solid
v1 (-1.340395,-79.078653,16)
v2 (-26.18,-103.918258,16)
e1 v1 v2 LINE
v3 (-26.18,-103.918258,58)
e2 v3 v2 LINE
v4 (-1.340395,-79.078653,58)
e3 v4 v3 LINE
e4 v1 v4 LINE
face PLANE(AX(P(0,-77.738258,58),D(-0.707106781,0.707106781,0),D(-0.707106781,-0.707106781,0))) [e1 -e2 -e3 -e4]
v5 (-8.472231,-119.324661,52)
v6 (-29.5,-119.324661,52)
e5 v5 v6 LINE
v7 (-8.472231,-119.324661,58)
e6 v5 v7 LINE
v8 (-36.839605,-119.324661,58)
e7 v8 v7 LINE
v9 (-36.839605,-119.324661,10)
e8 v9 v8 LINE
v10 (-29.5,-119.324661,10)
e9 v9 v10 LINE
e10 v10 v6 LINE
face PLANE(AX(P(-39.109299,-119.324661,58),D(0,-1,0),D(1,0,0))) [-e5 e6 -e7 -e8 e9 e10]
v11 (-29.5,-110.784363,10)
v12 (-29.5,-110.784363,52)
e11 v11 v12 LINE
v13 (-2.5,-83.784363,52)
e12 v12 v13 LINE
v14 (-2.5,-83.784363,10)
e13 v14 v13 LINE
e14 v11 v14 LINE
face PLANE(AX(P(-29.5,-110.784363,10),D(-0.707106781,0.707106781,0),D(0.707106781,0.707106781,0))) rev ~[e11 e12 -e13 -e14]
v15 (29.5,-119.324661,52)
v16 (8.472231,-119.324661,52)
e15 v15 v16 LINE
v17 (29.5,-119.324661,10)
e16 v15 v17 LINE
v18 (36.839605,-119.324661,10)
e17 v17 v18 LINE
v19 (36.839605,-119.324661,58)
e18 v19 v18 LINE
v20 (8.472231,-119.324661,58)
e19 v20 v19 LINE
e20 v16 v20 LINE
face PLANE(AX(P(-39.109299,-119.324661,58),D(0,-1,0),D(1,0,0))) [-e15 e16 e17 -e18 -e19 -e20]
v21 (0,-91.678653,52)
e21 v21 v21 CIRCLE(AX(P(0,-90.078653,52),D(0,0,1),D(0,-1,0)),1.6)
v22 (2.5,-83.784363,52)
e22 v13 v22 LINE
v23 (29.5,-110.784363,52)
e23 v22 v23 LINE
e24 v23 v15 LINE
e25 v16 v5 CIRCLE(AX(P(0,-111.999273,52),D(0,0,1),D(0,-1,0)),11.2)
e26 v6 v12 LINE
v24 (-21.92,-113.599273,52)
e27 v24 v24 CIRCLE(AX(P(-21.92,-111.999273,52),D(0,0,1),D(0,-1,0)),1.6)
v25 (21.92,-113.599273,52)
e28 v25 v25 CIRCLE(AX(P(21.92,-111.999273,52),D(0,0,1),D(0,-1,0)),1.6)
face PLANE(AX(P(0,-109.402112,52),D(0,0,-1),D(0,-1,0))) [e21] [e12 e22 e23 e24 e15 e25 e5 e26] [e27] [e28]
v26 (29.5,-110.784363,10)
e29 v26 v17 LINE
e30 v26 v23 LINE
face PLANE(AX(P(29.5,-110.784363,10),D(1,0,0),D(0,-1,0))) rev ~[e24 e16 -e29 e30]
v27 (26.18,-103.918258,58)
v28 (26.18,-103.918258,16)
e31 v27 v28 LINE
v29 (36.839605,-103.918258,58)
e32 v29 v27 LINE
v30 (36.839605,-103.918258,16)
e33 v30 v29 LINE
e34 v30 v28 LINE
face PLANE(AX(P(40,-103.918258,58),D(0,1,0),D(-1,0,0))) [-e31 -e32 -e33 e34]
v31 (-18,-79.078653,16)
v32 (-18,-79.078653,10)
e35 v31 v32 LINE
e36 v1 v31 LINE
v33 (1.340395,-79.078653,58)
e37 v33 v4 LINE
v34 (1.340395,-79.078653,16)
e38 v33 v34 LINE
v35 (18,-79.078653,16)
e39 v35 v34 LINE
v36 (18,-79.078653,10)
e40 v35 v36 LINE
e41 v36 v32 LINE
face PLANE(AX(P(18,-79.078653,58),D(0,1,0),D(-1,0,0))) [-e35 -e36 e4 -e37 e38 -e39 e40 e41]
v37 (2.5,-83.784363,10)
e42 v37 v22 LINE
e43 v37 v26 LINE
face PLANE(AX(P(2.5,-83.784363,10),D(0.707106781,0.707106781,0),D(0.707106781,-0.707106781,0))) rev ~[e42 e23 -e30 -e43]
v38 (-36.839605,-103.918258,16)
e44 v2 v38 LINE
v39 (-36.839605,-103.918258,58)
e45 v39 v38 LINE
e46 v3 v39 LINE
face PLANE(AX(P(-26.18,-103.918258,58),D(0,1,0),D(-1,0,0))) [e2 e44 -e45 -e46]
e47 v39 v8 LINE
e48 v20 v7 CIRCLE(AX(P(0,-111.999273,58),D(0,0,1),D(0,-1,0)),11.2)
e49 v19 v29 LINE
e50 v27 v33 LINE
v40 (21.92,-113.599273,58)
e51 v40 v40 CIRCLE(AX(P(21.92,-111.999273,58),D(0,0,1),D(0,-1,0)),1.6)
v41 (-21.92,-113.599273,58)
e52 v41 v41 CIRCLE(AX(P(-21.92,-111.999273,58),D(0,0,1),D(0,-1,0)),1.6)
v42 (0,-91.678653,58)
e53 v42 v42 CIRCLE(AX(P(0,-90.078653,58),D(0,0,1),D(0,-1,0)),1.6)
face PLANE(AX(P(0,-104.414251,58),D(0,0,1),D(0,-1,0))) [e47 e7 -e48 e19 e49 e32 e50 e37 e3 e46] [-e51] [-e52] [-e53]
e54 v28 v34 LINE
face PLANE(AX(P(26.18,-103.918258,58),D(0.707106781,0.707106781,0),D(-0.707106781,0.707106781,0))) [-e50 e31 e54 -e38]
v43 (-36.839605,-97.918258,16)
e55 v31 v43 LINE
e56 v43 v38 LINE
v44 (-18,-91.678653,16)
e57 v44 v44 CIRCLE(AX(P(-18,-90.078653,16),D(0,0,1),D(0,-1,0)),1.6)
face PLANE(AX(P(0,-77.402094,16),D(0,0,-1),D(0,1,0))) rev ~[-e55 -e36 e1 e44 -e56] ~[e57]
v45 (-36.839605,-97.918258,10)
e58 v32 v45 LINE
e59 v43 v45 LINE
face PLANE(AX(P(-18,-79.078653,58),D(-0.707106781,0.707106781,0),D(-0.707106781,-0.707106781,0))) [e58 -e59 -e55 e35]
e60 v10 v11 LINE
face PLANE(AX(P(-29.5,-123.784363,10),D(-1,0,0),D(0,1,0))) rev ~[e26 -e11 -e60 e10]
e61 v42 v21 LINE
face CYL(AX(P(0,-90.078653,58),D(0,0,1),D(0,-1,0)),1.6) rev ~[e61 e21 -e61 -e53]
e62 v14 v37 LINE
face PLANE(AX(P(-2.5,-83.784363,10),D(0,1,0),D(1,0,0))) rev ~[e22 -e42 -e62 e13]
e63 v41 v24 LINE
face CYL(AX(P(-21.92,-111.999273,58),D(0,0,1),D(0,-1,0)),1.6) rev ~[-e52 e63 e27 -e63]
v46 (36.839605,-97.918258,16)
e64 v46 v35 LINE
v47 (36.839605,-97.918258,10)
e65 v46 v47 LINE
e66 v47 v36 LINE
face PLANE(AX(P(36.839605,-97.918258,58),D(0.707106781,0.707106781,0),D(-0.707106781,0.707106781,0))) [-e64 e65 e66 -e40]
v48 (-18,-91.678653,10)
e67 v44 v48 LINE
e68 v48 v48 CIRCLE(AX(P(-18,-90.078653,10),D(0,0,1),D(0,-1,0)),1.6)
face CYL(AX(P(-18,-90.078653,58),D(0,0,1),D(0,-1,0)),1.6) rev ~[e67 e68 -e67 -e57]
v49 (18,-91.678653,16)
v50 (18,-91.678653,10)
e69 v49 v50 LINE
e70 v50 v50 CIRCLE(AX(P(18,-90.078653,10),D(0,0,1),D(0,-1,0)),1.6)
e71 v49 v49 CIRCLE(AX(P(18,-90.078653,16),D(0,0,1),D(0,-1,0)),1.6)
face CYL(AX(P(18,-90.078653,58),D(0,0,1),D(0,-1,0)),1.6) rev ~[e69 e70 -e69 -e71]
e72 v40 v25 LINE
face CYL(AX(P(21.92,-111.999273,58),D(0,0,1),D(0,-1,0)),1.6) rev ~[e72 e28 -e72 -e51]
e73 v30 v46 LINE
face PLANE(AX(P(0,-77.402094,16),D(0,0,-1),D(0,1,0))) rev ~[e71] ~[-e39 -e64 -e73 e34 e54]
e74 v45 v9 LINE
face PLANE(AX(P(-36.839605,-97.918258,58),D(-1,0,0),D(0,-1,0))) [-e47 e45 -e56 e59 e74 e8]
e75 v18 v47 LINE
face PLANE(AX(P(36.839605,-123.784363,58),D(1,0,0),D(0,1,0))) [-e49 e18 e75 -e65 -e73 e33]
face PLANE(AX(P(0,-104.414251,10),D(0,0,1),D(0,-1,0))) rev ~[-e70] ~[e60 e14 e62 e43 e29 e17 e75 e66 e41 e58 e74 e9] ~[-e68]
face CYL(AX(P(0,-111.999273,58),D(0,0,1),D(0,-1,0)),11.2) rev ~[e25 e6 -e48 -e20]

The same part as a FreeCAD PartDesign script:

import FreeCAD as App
import Part
import Sketcher
from FreeCAD import Vector


def add_polygon(sketch, points):
    """Adds a closed chain of lines whose ends are joined by coincident constraints."""
    first, n = sketch.GeometryCount, len(points)
    for a, b in zip(points, points[1:] + points[:1]):
        sketch.addGeometry(Part.LineSegment(App.Vector(*a, 0), App.Vector(*b, 0)), False)
    for i in range(n):
        sketch.addConstraint(Sketcher.Constraint("Coincident", first + i, 2, first + (i + 1) % n, 1))

doc = App.newDocument("Part")
body = doc.addObject("PartDesign::Body", "Body")

# Sketch on XY plane
sketch1 = doc.addObject("Sketcher::SketchObject", "Sketch")
body.addObject(sketch1)
sketch1.AttachmentSupport = (doc.XY_Plane, [""])
sketch1.MapMode = "FlatFace"
add_polygon(sketch1, [(133.1, 18), (133.1, -18), (151.9, -36.8), (177.8, -36.8), (177.8, 36.8), (151.9, 36.8)])  # lines 0-5
sketch1.addGeometry(Part.Circle(Vector(144.1, -18, 0), Vector(0, 0, 1), 1.6), False)  # 6
sketch1.addGeometry(Part.Circle(Vector(166, -21.9, 0), Vector(0, 0, 1), 1.6), False)  # 7
sketch1.addGeometry(Part.Circle(Vector(144.1, 0, 0), Vector(0, 0, 1), 1.6), False)  # 8
sketch1.addGeometry(Part.Circle(Vector(144.1, 18, 0), Vector(0, 0, 1), 1.6), False)  # 9
sketch1.addGeometry(Part.Circle(Vector(166, 0, 0), Vector(0, 0, 1), 11.2), False)  # 10
sketch1.addGeometry(Part.Circle(Vector(166, 21.9, 0), Vector(0, 0, 1), 1.6), False)  # 11
sketch1.addConstraint(Sketcher.Constraint("Vertical", 0))
sketch1.addConstraint(Sketcher.Constraint("Horizontal", 2))
sketch1.addConstraint(Sketcher.Constraint("Vertical", 3))
sketch1.addConstraint(Sketcher.Constraint("Horizontal", 4))
sketch1.addConstraint(Sketcher.Constraint("Equal", 6, 7))
sketch1.addConstraint(Sketcher.Constraint("Equal", 7, 8))
sketch1.addConstraint(Sketcher.Constraint("Equal", 8, 9))
sketch1.addConstraint(Sketcher.Constraint("Equal", 9, 11))
sketch1.addConstraint(Sketcher.Constraint("Symmetric", 6, 3, 9, 3, -1))
sketch1.addConstraint(Sketcher.Constraint("Symmetric", 7, 3, 11, 3, -1))
sketch1.addConstraint(Sketcher.Constraint("Symmetric", 1, 2, 4, 2, -1))
sketch1.addConstraint(Sketcher.Constraint("PointOnObject", 8, 3, -1))
sketch1.addConstraint(Sketcher.Constraint("PointOnObject", 10, 3, -1))
sketch1.addConstraint(Sketcher.Constraint("Perpendicular", 1, 5))
sketch1.addConstraint(Sketcher.Constraint("Horizontal", 6, 3, 0, 2))
sketch1.addConstraint(Sketcher.Constraint("Horizontal", 9, 3, 5, 2))
sketch1.addConstraint(Sketcher.Constraint("Vertical", 6, 3, 8, 3))
sketch1.addConstraint(Sketcher.Constraint("Vertical", 7, 3, 10, 3))
sketch1.addConstraint(Sketcher.Constraint("Diameter", 6, 3.2))
sketch1.addConstraint(Sketcher.Constraint("Diameter", 10, 22.4))
sketch1.addConstraint(Sketcher.Constraint("DistanceY", 0, 2, 0, 1, 36.0))
sketch1.addConstraint(Sketcher.Constraint("DistanceX", 0, 2, 6, 3, 11.0))
sketch1.addConstraint(Sketcher.Constraint("DistanceY", 7, 3, -1, 1, 21.92))
sketch1.addConstraint(Sketcher.Constraint("DistanceY", 3, 1, 3, 2, 73.67921))
sketch1.addConstraint(Sketcher.Constraint("DistanceX", 2, 1, 2, 2, 25.866105))
sketch1.addConstraint(Sketcher.Constraint("DistanceX", -1, 1, 1, 2, 151.918258))
sketch1.addConstraint(Sketcher.Constraint("DistanceX", 6, 3, 7, 3, 21.92062))
pad1 = doc.addObject("PartDesign::Pad", "Pad")
body.addObject(pad1)
pad1.Profile = sketch1
pad1.Length = 48
pad1.Reversed = True

# Sketch on XY plane
sketch2 = doc.addObject("Sketcher::SketchObject", "Sketch001")
body.addObject(sketch2)
sketch2.AttachmentSupport = (doc.XY_Plane, [""])
sketch2.MapMode = "FlatFace"
sketch2.AttachmentOffset = App.Placement(Vector(0, 0, -48), App.Rotation())
add_polygon(sketch2, [(178, -30), (165, -30), (138, -2), (138, 2), (165, 30), (178, 30)])  # lines 0-5
sketch2.addConstraint(Sketcher.Constraint("Horizontal", 0))
sketch2.addConstraint(Sketcher.Constraint("Vertical", 2))
sketch2.addConstraint(Sketcher.Constraint("Horizontal", 4))
sketch2.addConstraint(Sketcher.Constraint("Vertical", 5))
sketch2.addConstraint(Sketcher.Constraint("Symmetric", 0, 2, 3, 2, -1))
sketch2.addConstraint(Sketcher.Constraint("Perpendicular", 1, 3))
sketch2.addConstraint(Sketcher.Constraint("Equal", 1, 3))
sketch2.addConstraint(Sketcher.Constraint("DistanceX", 0, 2, 0, 1, 13.0))
sketch2.addConstraint(Sketcher.Constraint("DistanceY", 2, 1, 2, 2, 5.0))
sketch2.addConstraint(Sketcher.Constraint("DistanceY", 5, 2, 5, 1, 59.0))
sketch2.addConstraint(Sketcher.Constraint("DistanceX", -1, 1, 0, 2, 164.784363))
pocket1 = doc.addObject("PartDesign::Pocket", "Pocket")
body.addObject(pocket1)
pocket1.Profile = sketch2
pocket1.Length = 42
pocket1.Reversed = True

# Sketch on XY plane
sketch3 = doc.addObject("Sketcher::SketchObject", "Sketch002")
body.addObject(sketch3)
sketch3.AttachmentSupport = (doc.XY_Plane, [""])
sketch3.MapMode = "FlatFace"
add_polygon(sketch3, [(132, 0), (158, 26), (158, 40), (108, 40), (108, -40), (158, -40), (158, -26)])  # lines 0-6
sketch3.addConstraint(Sketcher.Constraint("Vertical", 1))
sketch3.addConstraint(Sketcher.Constraint("Horizontal", 2))
sketch3.addConstraint(Sketcher.Constraint("Vertical", 3))
sketch3.addConstraint(Sketcher.Constraint("Horizontal", 4))
sketch3.addConstraint(Sketcher.Constraint("Vertical", 5))
sketch3.addConstraint(Sketcher.Constraint("Symmetric", 1, 2, 4, 2, -1))
sketch3.addConstraint(Sketcher.Constraint("PointOnObject", 6, 2, -1))
sketch3.addConstraint(Sketcher.Constraint("Perpendicular", 0, 6))
sketch3.addConstraint(Sketcher.Constraint("Equal", 1, 5))
sketch3.addConstraint(Sketcher.Constraint("DistanceX", 2, 2, 2, 1, 50.0))
sketch3.addConstraint(Sketcher.Constraint("DistanceY", 3, 2, 3, 1, 80.0))
sketch3.addConstraint(Sketcher.Constraint("DistanceY", 1, 1, 1, 2, 13.82))
sketch3.addConstraint(Sketcher.Constraint("DistanceX", -1, 1, 0, 2, 157.918258))
pocket2 = doc.addObject("PartDesign::Pocket", "Pocket001")
body.addObject(pocket2)
pocket2.Profile = sketch3
pocket2.Length = 42

# Sketch on XY plane
sketch4 = doc.addObject("Sketcher::SketchObject", "Sketch003")
body.addObject(sketch4)
sketch4.AttachmentSupport = (doc.XY_Plane, [""])
sketch4.MapMode = "FlatFace"
add_polygon(sketch4, [(173, 39), (173, -39), (183, -39), (183, 39)])  # lines 0-3
sketch4.addConstraint(Sketcher.Constraint("Vertical", 0))
sketch4.addConstraint(Sketcher.Constraint("Horizontal", 1))
sketch4.addConstraint(Sketcher.Constraint("Vertical", 2))
sketch4.addConstraint(Sketcher.Constraint("Horizontal", 3))
sketch4.addConstraint(Sketcher.Constraint("DistanceY", 0, 2, -1, 1, 39.109299))
sketch4.addConstraint(Sketcher.Constraint("DistanceX", 1, 1, 1, 2, 10.029114))
sketch4.addConstraint(Sketcher.Constraint("DistanceY", 0, 2, 0, 1, 77.862412))
sketch4.addConstraint(Sketcher.Constraint("DistanceX", -1, 1, 0, 2, 173.324661))
pocket3 = doc.addObject("PartDesign::Pocket", "Pocket002")
body.addObject(pocket3)
pocket3.Profile = sketch4
pocket3.Length = 48
body2 = doc.addObject("PartDesign::Body", "Body001")
doc.recompute()

body.Placement = App.Placement(Vector(0, 54, 58), App.Rotation(Vector(0, 0, -1), 90))
boolean = doc.addObject("PartDesign::Boolean", "Boolean")
body2.addObject(boolean)
boolean.Type = "Fuse"
boolean.addObjects([body])

doc.recompute()
